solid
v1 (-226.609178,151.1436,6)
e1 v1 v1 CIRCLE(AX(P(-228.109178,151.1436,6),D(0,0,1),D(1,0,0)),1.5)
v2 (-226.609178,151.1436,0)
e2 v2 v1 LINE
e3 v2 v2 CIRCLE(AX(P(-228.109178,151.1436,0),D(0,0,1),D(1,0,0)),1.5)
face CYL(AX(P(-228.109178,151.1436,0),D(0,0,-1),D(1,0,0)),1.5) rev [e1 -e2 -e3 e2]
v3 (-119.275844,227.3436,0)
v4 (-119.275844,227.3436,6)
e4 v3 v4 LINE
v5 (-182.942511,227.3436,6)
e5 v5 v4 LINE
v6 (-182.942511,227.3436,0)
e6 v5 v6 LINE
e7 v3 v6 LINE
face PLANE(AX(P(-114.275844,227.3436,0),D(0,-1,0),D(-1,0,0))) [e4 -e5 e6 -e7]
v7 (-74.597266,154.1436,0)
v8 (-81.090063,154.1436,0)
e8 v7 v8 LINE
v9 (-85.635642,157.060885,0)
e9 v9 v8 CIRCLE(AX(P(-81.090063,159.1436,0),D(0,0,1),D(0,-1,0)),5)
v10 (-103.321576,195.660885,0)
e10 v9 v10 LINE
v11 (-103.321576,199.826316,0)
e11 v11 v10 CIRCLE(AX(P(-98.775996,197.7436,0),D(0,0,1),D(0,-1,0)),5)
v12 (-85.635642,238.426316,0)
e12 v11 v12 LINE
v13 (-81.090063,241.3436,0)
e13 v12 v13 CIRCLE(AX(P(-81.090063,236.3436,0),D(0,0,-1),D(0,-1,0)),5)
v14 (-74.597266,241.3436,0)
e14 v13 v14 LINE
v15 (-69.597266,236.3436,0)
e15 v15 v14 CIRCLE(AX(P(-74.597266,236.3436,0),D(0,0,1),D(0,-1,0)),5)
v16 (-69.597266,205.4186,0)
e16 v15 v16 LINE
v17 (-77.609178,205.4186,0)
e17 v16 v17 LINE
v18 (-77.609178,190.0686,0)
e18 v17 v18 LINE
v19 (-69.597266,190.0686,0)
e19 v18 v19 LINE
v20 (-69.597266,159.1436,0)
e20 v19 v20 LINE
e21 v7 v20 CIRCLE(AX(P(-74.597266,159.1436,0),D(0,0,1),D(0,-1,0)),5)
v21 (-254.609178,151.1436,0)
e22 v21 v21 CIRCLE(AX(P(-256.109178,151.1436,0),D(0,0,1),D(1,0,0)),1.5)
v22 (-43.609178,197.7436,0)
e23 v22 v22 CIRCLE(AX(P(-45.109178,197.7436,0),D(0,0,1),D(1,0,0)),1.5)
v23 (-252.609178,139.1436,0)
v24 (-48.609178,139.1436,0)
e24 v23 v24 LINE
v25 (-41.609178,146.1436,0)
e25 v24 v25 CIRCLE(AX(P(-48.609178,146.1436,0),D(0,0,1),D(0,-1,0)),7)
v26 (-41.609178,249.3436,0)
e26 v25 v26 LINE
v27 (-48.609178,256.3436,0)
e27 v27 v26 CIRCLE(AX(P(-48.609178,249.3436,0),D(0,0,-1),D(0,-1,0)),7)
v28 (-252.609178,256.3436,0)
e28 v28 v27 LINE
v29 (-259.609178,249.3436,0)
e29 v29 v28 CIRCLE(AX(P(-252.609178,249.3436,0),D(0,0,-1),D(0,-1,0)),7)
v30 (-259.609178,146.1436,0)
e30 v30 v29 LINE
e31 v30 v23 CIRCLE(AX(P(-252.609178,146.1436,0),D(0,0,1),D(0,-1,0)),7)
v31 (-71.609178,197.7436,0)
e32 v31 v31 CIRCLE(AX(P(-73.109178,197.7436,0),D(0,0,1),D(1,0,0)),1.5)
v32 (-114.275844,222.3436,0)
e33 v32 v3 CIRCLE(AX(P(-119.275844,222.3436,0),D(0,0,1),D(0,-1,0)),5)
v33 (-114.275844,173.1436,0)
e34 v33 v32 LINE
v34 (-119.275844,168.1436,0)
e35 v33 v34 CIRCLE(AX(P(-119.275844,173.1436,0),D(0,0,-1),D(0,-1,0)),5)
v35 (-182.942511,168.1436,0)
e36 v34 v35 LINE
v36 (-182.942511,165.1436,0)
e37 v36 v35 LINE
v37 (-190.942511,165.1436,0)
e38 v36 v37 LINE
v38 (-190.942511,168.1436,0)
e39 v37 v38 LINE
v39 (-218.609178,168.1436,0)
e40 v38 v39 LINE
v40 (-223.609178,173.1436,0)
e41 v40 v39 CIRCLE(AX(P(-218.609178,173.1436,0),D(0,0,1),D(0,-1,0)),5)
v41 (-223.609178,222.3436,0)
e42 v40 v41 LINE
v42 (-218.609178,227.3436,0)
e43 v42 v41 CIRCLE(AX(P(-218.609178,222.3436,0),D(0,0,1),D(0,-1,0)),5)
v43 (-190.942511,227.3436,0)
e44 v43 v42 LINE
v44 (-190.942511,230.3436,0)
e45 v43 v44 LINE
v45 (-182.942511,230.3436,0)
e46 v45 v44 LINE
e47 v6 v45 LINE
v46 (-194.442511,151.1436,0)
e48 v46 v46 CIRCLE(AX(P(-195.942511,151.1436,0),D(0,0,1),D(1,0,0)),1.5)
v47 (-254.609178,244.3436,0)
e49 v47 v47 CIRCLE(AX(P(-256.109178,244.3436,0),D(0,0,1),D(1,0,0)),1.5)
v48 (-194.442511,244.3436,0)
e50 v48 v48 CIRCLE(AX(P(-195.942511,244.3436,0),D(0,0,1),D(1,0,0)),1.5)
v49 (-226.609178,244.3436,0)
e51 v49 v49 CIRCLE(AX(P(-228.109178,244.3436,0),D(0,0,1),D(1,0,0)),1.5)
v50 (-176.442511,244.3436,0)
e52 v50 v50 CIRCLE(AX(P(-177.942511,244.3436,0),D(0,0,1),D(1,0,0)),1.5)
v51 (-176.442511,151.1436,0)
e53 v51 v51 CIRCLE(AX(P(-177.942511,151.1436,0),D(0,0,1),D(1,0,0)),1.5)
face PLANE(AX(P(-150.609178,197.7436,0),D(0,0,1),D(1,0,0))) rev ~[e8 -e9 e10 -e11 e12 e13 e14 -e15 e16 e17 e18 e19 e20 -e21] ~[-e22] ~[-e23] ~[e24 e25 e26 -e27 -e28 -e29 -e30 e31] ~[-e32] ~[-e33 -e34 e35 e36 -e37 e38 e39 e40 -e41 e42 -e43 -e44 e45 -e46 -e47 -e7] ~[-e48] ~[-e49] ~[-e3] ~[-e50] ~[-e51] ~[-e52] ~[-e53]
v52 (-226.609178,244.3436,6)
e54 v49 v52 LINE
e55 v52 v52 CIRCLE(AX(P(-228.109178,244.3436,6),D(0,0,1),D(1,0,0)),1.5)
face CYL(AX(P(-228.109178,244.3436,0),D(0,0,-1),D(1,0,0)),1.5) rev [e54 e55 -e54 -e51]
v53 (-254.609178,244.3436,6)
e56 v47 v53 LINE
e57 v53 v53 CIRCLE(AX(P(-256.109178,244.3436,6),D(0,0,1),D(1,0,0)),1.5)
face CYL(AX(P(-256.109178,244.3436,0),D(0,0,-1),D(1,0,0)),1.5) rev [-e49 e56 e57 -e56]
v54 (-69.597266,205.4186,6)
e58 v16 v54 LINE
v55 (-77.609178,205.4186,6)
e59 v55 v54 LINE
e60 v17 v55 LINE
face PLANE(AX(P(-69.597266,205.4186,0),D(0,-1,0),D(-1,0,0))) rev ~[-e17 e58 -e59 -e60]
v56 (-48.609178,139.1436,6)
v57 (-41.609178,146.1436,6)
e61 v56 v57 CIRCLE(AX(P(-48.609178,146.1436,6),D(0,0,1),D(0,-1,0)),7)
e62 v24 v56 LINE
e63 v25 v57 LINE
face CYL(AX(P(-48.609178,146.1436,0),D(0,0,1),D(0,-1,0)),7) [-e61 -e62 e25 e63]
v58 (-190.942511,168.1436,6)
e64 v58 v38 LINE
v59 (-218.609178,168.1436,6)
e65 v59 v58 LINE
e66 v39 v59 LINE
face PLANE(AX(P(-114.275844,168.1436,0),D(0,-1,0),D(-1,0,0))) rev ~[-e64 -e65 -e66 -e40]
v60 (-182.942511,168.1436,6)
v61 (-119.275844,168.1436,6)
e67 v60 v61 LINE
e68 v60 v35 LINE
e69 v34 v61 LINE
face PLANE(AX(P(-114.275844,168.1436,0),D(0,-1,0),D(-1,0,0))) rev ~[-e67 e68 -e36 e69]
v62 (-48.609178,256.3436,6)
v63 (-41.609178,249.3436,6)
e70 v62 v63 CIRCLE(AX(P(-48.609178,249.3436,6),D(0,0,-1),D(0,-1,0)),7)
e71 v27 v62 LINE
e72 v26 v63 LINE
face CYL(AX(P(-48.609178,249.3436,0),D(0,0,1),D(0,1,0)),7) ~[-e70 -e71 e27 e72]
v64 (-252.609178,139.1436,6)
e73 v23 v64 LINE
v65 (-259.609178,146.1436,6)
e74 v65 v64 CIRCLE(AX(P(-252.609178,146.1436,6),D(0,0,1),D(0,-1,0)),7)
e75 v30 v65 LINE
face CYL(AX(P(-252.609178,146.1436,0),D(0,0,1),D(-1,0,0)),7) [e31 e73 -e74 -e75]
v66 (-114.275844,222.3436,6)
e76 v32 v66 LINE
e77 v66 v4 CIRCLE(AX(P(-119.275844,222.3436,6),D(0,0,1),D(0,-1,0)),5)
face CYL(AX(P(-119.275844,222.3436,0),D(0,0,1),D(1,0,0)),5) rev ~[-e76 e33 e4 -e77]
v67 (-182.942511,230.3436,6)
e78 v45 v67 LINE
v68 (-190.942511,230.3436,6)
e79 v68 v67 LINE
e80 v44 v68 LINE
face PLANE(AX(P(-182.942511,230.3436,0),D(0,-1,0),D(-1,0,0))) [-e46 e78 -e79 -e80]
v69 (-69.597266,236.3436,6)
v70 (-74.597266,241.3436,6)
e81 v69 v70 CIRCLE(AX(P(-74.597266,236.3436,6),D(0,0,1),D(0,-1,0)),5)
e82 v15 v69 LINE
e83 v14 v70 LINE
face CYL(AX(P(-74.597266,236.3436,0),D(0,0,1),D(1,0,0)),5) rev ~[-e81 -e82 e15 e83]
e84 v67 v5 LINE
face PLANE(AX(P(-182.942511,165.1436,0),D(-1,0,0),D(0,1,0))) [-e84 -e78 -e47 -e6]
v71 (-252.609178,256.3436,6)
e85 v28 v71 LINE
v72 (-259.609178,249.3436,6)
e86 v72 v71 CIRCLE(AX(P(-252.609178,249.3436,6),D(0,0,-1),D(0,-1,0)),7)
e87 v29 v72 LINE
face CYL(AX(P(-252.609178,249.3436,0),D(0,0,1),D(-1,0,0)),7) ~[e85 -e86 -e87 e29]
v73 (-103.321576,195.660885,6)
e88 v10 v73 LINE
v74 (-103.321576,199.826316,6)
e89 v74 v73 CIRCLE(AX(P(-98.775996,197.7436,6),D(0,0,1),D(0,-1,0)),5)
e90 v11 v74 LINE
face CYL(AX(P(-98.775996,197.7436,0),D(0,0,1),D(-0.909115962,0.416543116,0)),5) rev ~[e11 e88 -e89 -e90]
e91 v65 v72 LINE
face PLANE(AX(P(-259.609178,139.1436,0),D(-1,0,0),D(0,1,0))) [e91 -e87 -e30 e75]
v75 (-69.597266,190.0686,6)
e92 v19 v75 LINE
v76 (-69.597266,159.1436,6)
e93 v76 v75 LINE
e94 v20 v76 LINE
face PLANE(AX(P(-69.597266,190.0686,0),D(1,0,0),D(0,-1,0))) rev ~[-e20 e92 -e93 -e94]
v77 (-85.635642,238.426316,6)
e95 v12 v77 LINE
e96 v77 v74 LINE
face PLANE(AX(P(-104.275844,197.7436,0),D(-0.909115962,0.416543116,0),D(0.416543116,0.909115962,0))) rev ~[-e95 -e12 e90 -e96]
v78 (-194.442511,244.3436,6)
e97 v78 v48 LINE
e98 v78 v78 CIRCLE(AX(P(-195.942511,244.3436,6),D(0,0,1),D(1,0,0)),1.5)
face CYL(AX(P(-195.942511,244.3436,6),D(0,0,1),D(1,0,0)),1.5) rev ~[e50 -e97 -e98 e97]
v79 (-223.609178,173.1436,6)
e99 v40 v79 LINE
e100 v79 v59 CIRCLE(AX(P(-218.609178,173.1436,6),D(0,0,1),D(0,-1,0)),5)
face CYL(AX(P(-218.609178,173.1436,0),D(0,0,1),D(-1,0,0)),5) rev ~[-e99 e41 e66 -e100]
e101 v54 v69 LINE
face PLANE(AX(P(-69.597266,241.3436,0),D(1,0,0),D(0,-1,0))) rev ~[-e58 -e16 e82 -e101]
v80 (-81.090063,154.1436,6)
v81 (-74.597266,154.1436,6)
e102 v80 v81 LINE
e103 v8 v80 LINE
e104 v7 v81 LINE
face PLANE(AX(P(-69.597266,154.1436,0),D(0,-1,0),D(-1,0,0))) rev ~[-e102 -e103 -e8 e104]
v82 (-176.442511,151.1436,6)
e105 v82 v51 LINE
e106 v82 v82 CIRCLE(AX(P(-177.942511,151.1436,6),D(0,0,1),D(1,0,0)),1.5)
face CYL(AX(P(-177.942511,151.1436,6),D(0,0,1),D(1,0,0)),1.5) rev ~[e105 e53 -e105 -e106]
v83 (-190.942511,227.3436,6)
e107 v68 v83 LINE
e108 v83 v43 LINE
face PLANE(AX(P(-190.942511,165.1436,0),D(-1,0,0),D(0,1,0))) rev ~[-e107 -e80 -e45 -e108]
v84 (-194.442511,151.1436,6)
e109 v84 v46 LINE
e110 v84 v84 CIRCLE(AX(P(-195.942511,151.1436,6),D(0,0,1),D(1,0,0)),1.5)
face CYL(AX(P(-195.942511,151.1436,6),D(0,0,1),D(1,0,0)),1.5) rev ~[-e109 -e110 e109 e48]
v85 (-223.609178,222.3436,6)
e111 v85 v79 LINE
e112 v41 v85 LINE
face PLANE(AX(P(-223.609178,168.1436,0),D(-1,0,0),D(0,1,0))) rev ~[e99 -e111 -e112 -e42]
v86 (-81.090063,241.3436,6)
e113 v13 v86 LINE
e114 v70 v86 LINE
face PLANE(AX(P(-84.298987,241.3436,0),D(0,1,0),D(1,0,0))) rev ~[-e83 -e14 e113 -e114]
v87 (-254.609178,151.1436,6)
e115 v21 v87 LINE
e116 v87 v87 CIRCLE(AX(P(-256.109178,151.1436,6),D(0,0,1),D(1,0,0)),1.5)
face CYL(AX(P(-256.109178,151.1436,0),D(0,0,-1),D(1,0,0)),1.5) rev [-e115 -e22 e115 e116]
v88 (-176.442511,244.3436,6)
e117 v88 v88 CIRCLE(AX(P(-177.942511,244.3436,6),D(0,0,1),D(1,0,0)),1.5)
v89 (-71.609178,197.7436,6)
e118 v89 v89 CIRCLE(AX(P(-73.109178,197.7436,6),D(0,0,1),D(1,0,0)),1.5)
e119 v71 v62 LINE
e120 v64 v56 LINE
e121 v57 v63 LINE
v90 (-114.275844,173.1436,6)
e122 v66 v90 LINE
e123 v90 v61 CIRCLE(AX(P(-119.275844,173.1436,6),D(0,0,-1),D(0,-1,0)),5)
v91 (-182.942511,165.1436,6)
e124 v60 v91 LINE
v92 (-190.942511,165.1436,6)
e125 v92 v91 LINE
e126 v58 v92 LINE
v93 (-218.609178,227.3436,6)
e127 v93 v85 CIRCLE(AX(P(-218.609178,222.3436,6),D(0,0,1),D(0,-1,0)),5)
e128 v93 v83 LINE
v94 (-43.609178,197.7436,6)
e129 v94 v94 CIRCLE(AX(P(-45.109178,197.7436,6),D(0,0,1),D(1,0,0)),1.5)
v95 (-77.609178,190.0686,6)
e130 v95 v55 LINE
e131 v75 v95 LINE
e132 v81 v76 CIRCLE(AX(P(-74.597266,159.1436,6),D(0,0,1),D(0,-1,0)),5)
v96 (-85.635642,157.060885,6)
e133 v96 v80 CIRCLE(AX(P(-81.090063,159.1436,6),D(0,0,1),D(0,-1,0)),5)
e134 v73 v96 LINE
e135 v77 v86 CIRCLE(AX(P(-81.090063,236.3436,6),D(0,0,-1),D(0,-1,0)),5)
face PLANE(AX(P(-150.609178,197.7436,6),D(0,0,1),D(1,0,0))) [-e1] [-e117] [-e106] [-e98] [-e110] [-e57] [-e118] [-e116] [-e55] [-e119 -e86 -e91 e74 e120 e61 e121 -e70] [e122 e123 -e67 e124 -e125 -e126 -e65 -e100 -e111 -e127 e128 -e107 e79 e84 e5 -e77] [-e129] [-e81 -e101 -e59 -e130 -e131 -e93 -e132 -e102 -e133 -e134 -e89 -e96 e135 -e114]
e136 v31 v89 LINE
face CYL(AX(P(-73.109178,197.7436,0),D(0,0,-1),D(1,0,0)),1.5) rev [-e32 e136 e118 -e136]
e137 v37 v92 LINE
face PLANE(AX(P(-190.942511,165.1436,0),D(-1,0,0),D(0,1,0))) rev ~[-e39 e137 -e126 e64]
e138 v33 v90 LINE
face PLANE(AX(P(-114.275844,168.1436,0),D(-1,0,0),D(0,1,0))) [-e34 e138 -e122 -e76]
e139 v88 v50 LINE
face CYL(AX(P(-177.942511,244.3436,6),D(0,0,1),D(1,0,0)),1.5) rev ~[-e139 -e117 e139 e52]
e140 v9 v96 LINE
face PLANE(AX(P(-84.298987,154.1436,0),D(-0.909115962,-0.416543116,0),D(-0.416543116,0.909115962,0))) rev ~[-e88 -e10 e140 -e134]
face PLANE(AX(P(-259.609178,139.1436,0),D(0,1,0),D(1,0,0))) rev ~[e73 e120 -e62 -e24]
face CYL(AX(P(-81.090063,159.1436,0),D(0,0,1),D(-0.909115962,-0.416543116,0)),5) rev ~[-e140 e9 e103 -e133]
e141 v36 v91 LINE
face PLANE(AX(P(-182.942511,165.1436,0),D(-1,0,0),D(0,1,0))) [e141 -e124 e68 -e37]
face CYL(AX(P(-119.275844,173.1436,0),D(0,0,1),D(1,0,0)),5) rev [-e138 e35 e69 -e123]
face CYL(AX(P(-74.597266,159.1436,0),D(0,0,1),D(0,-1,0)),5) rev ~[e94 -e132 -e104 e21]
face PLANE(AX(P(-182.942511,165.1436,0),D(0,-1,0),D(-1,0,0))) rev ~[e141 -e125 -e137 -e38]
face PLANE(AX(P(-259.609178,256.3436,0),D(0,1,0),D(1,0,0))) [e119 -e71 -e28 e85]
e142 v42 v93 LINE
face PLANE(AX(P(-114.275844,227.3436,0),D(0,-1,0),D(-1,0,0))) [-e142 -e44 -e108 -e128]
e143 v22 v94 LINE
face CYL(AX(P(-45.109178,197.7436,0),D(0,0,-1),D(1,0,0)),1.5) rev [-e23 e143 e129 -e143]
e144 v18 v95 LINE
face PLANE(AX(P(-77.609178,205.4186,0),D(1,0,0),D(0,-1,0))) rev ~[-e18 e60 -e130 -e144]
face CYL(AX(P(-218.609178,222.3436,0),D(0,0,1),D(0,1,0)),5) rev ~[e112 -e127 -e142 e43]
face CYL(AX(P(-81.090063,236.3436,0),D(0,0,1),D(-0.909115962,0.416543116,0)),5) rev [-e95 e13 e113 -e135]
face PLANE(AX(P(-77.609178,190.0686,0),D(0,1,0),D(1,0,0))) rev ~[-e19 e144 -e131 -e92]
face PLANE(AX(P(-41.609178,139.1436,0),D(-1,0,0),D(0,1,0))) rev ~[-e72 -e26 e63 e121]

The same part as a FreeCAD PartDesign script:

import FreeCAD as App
import Part
import Sketcher
from FreeCAD import Vector


def edges_at(feature, points):
    """Names of the edges that pass closest to the given points."""
    edges = feature.Shape.Edges
    near = lambda p: min(range(len(edges)), key=lambda i: edges[i].distToShape(Part.Vertex(*p))[0])
    return sorted({f"Edge{near(p) + 1}" for p in points})


def add_polygon(sketch, points):
    """Adds a closed chain of lines whose ends are joined by coincident constraints."""
    first, n = sketch.GeometryCount, len(points)
    for a, b in zip(points, points[1:] + points[:1]):
        sketch.addGeometry(Part.LineSegment(App.Vector(*a, 0), App.Vector(*b, 0)), False)
    for i in range(n):
        sketch.addConstraint(Sketcher.Constraint("Coincident", first + i, 2, first + (i + 1) % n, 1))

doc = App.newDocument("Part")
params = doc.addObject("Spreadsheet::Sheet", "Params")
for row, (alias, value) in enumerate([
    ("sketch1_diameter", "3 mm"),
    ("sketch1_width", "218 mm"),
    ("sketch1_height", "117.2 mm"),
    ("pad1_length", "6 mm"),
    ("sketch2_diameter", "3 mm"),
    ("pocket1_length", "6 mm"),
    ("fillet_radius", "7 mm"),
    ("sketch3_height", "59.2 mm"),
    ("pocket2_length", "10 mm"),
    ("fillet2_radius", "5 mm"),
    ("sketch4_height", "15.35 mm"),
    ("pocket3_length", "10 mm"),
    ("fillet3_radius", "5 mm"),
    ("sketch5_width", "8 mm"),
    ("sketch5_height", "65.2 mm"),
    ("pocket4_length", "10 mm"),
], start=1):
    params.set(f"A{row}", alias)
    params.set(f"B{row}", "=" + value)
    params.setAlias(f"B{row}", alias)

body = doc.addObject("PartDesign::Body", "Body")

# Sketch on XY plane
sketch1 = body.newObject("Sketcher::SketchObject", "Sketch")
sketch1.AttachmentSupport = (doc.getObject("XY_Plane"), [""])
sketch1.MapMode = "FlatFace"
add_polygon(sketch1, [(-259.6, 256.3), (-259.6, 139.1), (-41.6, 139.1), (-41.6, 256.3)])  # lines 0-3
sketch1.addGeometry(Part.Circle(Vector(-256.1, 151.1, 0), Vector(0, 0, 1), 1.5), False)  # 4
sketch1.addGeometry(Part.Circle(Vector(-228.1, 151.1, 0), Vector(0, 0, 1), 1.5), False)  # 5
sketch1.addGeometry(Part.Circle(Vector(-73.1, 197.7, 0), Vector(0, 0, 1), 1.5), False)  # 6
sketch1.addGeometry(Part.Circle(Vector(-45.1, 197.7, 0), Vector(0, 0, 1), 1.5), False)  # 7
sketch1.addGeometry(Part.Circle(Vector(-256.1, 244.3, 0), Vector(0, 0, 1), 1.5), False)  # 8
sketch1.addGeometry(Part.Circle(Vector(-228.1, 244.3, 0), Vector(0, 0, 1), 1.5), False)  # 9
sketch1.addConstraint([
    Sketcher.Constraint("Vertical", 0),
    Sketcher.Constraint("Horizontal", 1),
    Sketcher.Constraint("Vertical", 2),
    Sketcher.Constraint("Horizontal", 3),
    Sketcher.Constraint("Equal", 4, 5),
    Sketcher.Constraint("Equal", 5, 6),
    Sketcher.Constraint("Equal", 6, 7),
    Sketcher.Constraint("Equal", 7, 8),
    Sketcher.Constraint("Equal", 8, 9),
    Sketcher.Constraint("Horizontal", 4, 3, 5, 3),
    Sketcher.Constraint("Horizontal", 6, 3, 7, 3),
    Sketcher.Constraint("Horizontal", 8, 3, 9, 3),
    Sketcher.Constraint("Vertical", 4, 3, 8, 3),
    Sketcher.Constraint("Vertical", 5, 3, 9, 3),
    Sketcher.Constraint("Diameter", 4, 3.0),
    Sketcher.Constraint("DistanceX", 1, 1, 1, 2, 218.0),
    Sketcher.Constraint("DistanceY", 0, 2, 0, 1, 117.2),
    Sketcher.Constraint("DistanceX", 4, 3, 5, 3, 28.0),
    Sketcher.Constraint("DistanceX", 5, 3, 6, 3, 155.0),
    Sketcher.Constraint("DistanceX", 6, 3, 7, 3, 28.0),
    Sketcher.Constraint("DistanceY", 0, 2, 4, 3, 12.0),
    Sketcher.Constraint("DistanceY", 9, 3, 2, 2, 12.0),
    Sketcher.Constraint("DistanceY", 5, 3, 6, 3, 46.6),
    Sketcher.Constraint("DistanceX", 0, 2, 4, 3, 3.5),
    Sketcher.Constraint("DistanceY", -1, 1, 4, 3, 151.1436),
    Sketcher.Constraint("DistanceX", 4, 3, -1, 1, 256.109178),
])
sketch1.setExpression("Constraints[18]", "Params.sketch1_diameter")
sketch1.setExpression("Constraints[19]", "Params.sketch1_width")
sketch1.setExpression("Constraints[20]", "Params.sketch1_height")
pad1 = body.newObject("PartDesign::Pad", "Pad")
pad1.Profile = sketch1
pad1.setExpression("Length", "Params.pad1_length")

# Sketch on XY plane
sketch2 = body.newObject("Sketcher::SketchObject", "Sketch001")
sketch2.AttachmentSupport = (doc.getObject("XY_Plane"), [""])
sketch2.MapMode = "FlatFace"
sketch2.AttachmentOffset = App.Placement(Vector(0, 0, 6), App.Rotation())
sketch2.addGeometry([
    Part.Circle(Vector(-195.9, 151.1, 0), Vector(0, 0, 1), 1.5),
    Part.Circle(Vector(-177.9, 151.1, 0), Vector(0, 0, 1), 1.5),
    Part.Circle(Vector(-195.9, 244.3, 0), Vector(0, 0, 1), 1.5),
    Part.Circle(Vector(-177.9, 244.3, 0), Vector(0, 0, 1), 1.5),
], False)
sketch2.addConstraint([
    Sketcher.Constraint("Equal", 0, 1),
    Sketcher.Constraint("Equal", 1, 2),
    Sketcher.Constraint("Equal", 2, 3),
    Sketcher.Constraint("Horizontal", 0, 3, 1, 3),
    Sketcher.Constraint("Horizontal", 2, 3, 3, 3),
    Sketcher.Constraint("Vertical", 0, 3, 2, 3),
    Sketcher.Constraint("Vertical", 1, 3, 3, 3),
    Sketcher.Constraint("Diameter", 0, 3.0),
    Sketcher.Constraint("DistanceX", 0, 3, 1, 3, 18.0),
    Sketcher.Constraint("DistanceY", 0, 3, 2, 3, 93.2),
    Sketcher.Constraint("DistanceY", -1, 1, 0, 3, 151.1436),
    Sketcher.Constraint("DistanceX", 0, 3, -1, 1, 195.942511),
])
sketch2.setExpression("Constraints[7]", "Params.sketch2_diameter")
pocket1 = body.newObject("PartDesign::Pocket", "Pocket")
pocket1.Profile = sketch2
pocket1.setExpression("Length", "Params.pocket1_length")
doc.recompute()

fillet = body.newObject("PartDesign::Fillet", "Fillet")
fillet.Base = (pocket1, edges_at(pocket1, [
    (-259.609, 256.344, 3),
    (-41.609, 256.344, 3),
    (-41.609, 139.144, 3),
    (-259.609, 139.144, 3),
]))
fillet.setExpression("Radius", "Params.fillet_radius")

# Sketch on XY plane
sketch3 = body.newObject("Sketcher::SketchObject", "Sketch002")
sketch3.AttachmentSupport = (doc.getObject("XY_Plane"), [""])
sketch3.MapMode = "FlatFace"
add_polygon(sketch3, [(-114, 227), (-114, 168), (-224, 168), (-224, 227)])  # lines 0-3
sketch3.addConstraint([
    Sketcher.Constraint("Vertical", 0),
    Sketcher.Constraint("Horizontal", 1),
    Sketcher.Constraint("Vertical", 2),
    Sketcher.Constraint("Horizontal", 3),
    Sketcher.Constraint("DistanceY", 0, 2, 0, 1, 59.2),
    Sketcher.Constraint("DistanceY", -1, 1, 0, 2, 168.1436),
    Sketcher.Constraint("DistanceX", 1, 2, 1, 1, 109.333333),
    Sketcher.Constraint("DistanceX", 0, 2, -1, 1, 114.275844),
])
sketch3.setExpression("Constraints[8]", "Params.sketch3_height")
pocket2 = body.newObject("PartDesign::Pocket", "Pocket001")
pocket2.Profile = sketch3
pocket2.setExpression("Length", "Params.pocket2_length")
pocket2.Reversed = True
doc.recompute()

fillet2 = body.newObject("PartDesign::Fillet", "Fillet001")
fillet2.Base = (pocket2, edges_at(pocket2, [
    (-114.276, 227.344, 3),
    (-223.609, 227.344, 3),
    (-223.609, 168.144, 3),
    (-114.276, 168.144, 3),
]))
fillet2.setExpression("Radius", "Params.fillet2_radius")

# Sketch on XY plane
sketch4 = body.newObject("Sketcher::SketchObject", "Sketch003")
sketch4.AttachmentSupport = (doc.getObject("XY_Plane"), [""])
sketch4.MapMode = "FlatFace"
add_polygon(sketch4, [(-84, 241), (-70, 241), (-70, 205), (-78, 205), (-78, 190), (-70, 190), (-70, 154), (-84, 154), (-104, 198)])  # lines 0-8
sketch4.addConstraint([
    Sketcher.Constraint("Horizontal", 0),
    Sketcher.Constraint("Vertical", 1),
    Sketcher.Constraint("Horizontal", 2),
    Sketcher.Constraint("Vertical", 3),
    Sketcher.Constraint("Horizontal", 4),
    Sketcher.Constraint("Vertical", 5),
    Sketcher.Constraint("Horizontal", 6),
    Sketcher.Constraint("Vertical", 1, 2, 4, 2),
    Sketcher.Constraint("Vertical", 6, 2, 8, 2),
    Sketcher.Constraint("Equal", 1, 5),
    Sketcher.Constraint("Equal", 7, 8),
    Sketcher.Constraint("DistanceY", 3, 2, 3, 1, 15.35),
    Sketcher.Constraint("DistanceY", 5, 2, 0, 2, 87.2),
    Sketcher.Constraint("DistanceX", 0, 1, 0, 2, 14.701721),
    Sketcher.Constraint("DistanceX", 2, 2, 2, 1, 8.011912),
    Sketcher.Constraint("DistanceY", -1, 1, 0, 2, 241.3436),
    Sketcher.Constraint("Distance", 7, 47.958678),
    Sketcher.Constraint("DistanceX", 0, 2, -1, 1, 69.597266),
])
sketch4.setExpression("Constraints[20]", "Params.sketch4_height")
pocket3 = body.newObject("PartDesign::Pocket", "Pocket002")
pocket3.Profile = sketch4
pocket3.setExpression("Length", "Params.pocket3_length")
pocket3.Reversed = True
doc.recompute()

fillet3 = body.newObject("PartDesign::Fillet", "Fillet002")
fillet3.Base = (pocket3, edges_at(pocket3, [
    (-69.597, 241.344, 3),
    (-84.299, 241.344, 3),
    (-104.276, 197.744, 3),
    (-84.299, 154.144, 3),
    (-69.597, 154.144, 3),
]))
fillet3.setExpression("Radius", "Params.fillet3_radius")

# Sketch on XY plane
sketch5 = body.newObject("Sketcher::SketchObject", "Sketch004")
sketch5.AttachmentSupport = (doc.getObject("XY_Plane"), [""])
sketch5.MapMode = "FlatFace"
add_polygon(sketch5, [(-183, 230), (-183, 165), (-191, 165), (-191, 230)])  # lines 0-3
sketch5.addConstraint([
    Sketcher.Constraint("Vertical", 0),
    Sketcher.Constraint("Horizontal", 1),
    Sketcher.Constraint("Vertical", 2),
    Sketcher.Constraint("Horizontal", 3),
    Sketcher.Constraint("DistanceX", 1, 2, 1, 1, 8.0),
    Sketcher.Constraint("DistanceY", 0, 2, 0, 1, 65.2),
    Sketcher.Constraint("DistanceY", -1, 1, 0, 2, 165.1436),
    Sketcher.Constraint("DistanceX", 0, 2, -1, 1, 182.942511),
])
sketch5.setExpression("Constraints[8]", "Params.sketch5_width")
sketch5.setExpression("Constraints[9]", "Params.sketch5_height")
pocket4 = body.newObject("PartDesign::Pocket", "Pocket003")
pocket4.Profile = sketch5
pocket4.setExpression("Length", "Params.pocket4_length")
pocket4.Reversed = True

doc.recompute()
